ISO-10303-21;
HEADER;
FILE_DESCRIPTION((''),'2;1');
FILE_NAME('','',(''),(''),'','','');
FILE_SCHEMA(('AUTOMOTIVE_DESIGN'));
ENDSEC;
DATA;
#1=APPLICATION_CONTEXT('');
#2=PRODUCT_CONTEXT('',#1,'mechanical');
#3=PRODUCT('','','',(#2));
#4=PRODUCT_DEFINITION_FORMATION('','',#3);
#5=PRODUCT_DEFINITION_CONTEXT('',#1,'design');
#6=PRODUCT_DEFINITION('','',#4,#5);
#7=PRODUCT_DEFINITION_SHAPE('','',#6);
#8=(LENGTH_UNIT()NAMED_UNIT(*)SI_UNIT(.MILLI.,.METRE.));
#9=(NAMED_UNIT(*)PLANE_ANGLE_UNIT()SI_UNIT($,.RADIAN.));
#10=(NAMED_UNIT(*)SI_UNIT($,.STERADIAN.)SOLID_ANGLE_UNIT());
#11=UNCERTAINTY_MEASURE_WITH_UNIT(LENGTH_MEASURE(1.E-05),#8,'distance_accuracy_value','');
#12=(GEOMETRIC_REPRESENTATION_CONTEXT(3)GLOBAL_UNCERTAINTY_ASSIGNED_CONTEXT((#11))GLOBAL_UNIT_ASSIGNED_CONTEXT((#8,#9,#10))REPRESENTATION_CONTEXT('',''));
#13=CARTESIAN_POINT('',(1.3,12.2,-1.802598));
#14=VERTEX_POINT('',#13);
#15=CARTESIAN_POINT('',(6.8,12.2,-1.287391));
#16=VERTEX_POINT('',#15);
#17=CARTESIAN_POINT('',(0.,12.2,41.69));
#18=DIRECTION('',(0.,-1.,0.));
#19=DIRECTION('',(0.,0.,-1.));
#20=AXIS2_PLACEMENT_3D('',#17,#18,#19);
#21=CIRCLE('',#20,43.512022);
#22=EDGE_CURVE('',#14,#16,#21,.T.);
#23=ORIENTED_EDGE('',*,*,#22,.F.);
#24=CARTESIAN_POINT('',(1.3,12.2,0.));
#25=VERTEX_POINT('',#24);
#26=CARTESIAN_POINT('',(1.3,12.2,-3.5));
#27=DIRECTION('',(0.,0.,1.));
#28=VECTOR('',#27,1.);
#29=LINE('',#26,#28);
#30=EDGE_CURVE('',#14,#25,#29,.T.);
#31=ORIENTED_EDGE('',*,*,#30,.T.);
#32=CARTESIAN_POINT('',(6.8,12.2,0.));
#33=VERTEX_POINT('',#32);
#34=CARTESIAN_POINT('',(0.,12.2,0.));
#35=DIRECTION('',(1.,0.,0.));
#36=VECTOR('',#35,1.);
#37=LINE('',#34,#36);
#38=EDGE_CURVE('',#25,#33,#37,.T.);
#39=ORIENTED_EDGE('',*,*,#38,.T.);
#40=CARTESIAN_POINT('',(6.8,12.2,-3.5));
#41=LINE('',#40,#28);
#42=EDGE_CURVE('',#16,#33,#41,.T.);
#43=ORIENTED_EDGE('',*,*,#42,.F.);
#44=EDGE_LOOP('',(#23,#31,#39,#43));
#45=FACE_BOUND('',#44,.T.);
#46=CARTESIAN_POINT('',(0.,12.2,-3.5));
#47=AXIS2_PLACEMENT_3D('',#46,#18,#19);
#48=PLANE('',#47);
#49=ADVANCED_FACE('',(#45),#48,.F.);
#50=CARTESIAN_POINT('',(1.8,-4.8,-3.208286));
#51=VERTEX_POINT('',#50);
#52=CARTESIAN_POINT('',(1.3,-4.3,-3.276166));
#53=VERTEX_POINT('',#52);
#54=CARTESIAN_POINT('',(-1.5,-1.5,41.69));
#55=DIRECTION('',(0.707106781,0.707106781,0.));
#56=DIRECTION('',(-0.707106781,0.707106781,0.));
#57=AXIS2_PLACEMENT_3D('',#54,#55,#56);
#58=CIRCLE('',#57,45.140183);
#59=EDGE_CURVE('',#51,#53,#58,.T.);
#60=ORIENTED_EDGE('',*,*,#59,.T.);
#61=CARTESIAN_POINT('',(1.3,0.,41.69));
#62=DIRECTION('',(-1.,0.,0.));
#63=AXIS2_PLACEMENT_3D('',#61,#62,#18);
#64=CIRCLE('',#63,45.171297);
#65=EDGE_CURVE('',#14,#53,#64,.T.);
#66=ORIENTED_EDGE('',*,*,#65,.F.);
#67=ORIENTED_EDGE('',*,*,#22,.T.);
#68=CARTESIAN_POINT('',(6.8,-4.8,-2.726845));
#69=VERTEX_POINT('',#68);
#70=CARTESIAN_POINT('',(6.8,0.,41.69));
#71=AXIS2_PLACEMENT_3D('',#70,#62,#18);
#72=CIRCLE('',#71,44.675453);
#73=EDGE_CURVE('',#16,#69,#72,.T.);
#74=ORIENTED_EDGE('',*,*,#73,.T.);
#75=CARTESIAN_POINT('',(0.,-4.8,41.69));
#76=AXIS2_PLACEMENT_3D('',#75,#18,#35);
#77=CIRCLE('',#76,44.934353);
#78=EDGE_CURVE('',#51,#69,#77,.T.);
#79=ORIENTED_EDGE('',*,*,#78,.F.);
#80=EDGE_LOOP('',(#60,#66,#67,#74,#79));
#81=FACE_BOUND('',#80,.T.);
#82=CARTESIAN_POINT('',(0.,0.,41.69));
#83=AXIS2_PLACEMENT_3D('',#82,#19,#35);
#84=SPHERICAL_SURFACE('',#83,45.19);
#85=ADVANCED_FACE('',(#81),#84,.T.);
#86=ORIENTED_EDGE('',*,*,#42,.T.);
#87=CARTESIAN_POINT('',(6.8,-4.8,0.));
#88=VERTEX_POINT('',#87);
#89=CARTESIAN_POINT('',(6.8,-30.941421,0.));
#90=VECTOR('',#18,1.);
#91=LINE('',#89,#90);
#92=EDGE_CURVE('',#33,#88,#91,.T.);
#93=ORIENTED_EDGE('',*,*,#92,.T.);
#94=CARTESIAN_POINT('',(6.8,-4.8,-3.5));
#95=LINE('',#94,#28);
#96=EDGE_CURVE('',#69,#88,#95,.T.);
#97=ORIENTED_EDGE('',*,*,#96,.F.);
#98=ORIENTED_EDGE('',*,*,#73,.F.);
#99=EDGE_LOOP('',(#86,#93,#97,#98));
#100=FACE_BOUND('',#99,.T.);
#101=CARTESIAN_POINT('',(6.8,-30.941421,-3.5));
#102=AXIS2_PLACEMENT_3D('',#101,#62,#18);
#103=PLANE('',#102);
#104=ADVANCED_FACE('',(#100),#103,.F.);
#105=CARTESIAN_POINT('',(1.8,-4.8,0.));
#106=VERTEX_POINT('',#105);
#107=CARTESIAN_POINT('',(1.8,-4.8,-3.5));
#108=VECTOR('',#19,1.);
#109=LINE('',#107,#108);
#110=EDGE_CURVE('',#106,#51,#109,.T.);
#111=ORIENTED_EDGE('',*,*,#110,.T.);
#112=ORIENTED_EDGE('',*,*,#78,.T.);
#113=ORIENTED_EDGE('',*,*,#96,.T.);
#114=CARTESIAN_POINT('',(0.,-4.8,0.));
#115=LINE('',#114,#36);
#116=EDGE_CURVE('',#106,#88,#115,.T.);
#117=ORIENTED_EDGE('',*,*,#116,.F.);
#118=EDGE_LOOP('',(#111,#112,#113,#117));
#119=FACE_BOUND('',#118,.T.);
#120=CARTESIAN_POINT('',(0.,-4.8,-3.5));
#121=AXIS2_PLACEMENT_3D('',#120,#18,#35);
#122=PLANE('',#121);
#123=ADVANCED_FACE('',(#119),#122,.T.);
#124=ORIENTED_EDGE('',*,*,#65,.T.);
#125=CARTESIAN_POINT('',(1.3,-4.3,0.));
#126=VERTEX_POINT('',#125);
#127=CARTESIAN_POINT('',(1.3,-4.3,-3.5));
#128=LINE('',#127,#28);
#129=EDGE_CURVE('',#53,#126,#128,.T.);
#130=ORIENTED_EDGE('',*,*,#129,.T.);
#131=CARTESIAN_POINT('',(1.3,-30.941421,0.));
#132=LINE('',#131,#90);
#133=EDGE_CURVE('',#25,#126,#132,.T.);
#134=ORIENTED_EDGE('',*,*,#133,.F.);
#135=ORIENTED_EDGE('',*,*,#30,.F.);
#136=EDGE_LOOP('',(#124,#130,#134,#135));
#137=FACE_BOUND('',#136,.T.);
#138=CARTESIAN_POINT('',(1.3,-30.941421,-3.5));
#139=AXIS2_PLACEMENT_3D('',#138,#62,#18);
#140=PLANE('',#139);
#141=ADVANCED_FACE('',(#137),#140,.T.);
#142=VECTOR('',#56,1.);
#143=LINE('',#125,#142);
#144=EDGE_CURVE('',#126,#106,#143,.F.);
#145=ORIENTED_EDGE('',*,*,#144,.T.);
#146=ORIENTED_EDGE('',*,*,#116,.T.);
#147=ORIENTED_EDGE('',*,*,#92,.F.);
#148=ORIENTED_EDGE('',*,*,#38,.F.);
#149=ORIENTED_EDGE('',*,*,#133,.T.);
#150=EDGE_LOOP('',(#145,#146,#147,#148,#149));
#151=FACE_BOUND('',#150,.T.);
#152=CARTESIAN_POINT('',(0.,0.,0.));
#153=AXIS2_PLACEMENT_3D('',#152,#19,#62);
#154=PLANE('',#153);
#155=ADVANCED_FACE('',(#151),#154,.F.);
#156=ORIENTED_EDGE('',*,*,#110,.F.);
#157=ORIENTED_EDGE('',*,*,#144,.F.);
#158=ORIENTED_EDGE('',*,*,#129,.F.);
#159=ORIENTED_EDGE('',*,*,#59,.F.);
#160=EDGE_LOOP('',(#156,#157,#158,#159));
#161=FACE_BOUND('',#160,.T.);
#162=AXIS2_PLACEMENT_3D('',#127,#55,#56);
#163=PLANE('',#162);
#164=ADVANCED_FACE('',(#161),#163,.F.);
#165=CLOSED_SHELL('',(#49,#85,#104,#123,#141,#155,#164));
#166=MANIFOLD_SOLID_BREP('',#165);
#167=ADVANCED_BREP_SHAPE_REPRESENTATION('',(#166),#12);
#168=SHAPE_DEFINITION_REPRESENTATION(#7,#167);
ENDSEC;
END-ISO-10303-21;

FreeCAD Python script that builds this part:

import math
import FreeCAD as App
import Part
import Sketcher

V = App.Vector


def edges_at(feature, points):
    """Names of the edges that pass closest to the given points."""
    edges = feature.Shape.Edges
    near = lambda p: min(range(len(edges)), key=lambda i: edges[i].distToShape(Part.Vertex(*p))[0])
    return sorted({f"Edge{near(p) + 1}" for p in points})

doc = App.newDocument("Part")
body = doc.addObject("PartDesign::Body", "Body")

# Sketch on XZ plane
sketch1 = body.newObject("Sketcher::SketchObject", "Sketch")
sketch1.AttachmentSupport = (doc.getObject("XZ_Plane"), [""])
sketch1.MapMode = "FlatFace"
sketch1.addGeometry(Part.LineSegment(V(14, 0, 0), V(14, -1.3, 0)), False)
sketch1.addGeometry(Part.ArcOfCircle(Part.Circle(V(0, 41.7, 0), V(0, 0, 1), 45.2), math.radians(-90), math.radians(-71.95)), False)
sketch1.addGeometry(Part.LineSegment(V(0, -3.5, 0), V(0, 0, 0)), False)
sketch1.addGeometry(Part.LineSegment(V(0, 0, 0), V(14, 0, 0)), False)
sketch1.addConstraint(Sketcher.Constraint("Coincident", 0, 2, 1, 2))
sketch1.addConstraint(Sketcher.Constraint("Coincident", 1, 1, 2, 1))
sketch1.addConstraint(Sketcher.Constraint("Coincident", 2, 2, 3, 1))
sketch1.addConstraint(Sketcher.Constraint("Coincident", 3, 2, 0, 1))
sketch1.addConstraint(Sketcher.Constraint("Vertical", 0))
sketch1.addConstraint(Sketcher.Constraint("Vertical", 2))
sketch1.addConstraint(Sketcher.Constraint("Horizontal", 3))
sketch1.addConstraint(Sketcher.Constraint("Coincident", 2, 2, -1, 1))
sketch1.addConstraint(Sketcher.Constraint("PointOnObject", 1, 3, -2))
sketch1.addConstraint(Sketcher.Constraint("DistanceX", 3, 1, 3, 2, 14.0))
sketch1.addConstraint(Sketcher.Constraint("Radius", 1, 45.19))
sketch1.addConstraint(Sketcher.Constraint("DistanceY", 2, 1, 2, 2, 3.5))
revolution = body.newObject("PartDesign::Revolution", "Revolution")
revolution.Profile = sketch1
revolution.ReferenceAxis = (sketch1, ["V_Axis"])
revolution.Angle = 360

# Sketch on XY plane
sketch2 = body.newObject("Sketcher::SketchObject", "Sketch001")
sketch2.AttachmentSupport = (doc.getObject("XY_Plane"), [""])
sketch2.MapMode = "FlatFace"
sketch2.addGeometry(Part.LineSegment(V(-19, 19, 0), V(-19, -19, 0)), False)
sketch2.addGeometry(Part.LineSegment(V(-19, -19, 0), V(19, -19, 0)), False)
sketch2.addGeometry(Part.LineSegment(V(19, -19, 0), V(19, 19, 0)), False)
sketch2.addGeometry(Part.LineSegment(V(19, 19, 0), V(-19, 19, 0)), False)
sketch2.addGeometry(Part.LineSegment(V(7, -5, 0), V(1, -5, 0)), False)
sketch2.addGeometry(Part.LineSegment(V(1, -5, 0), V(1, 12, 0)), False)
sketch2.addGeometry(Part.LineSegment(V(1, 12, 0), V(7, 12, 0)), False)
sketch2.addGeometry(Part.LineSegment(V(7, 12, 0), V(7, -5, 0)), False)
sketch2.addConstraint(Sketcher.Constraint("Coincident", 0, 2, 1, 1))
sketch2.addConstraint(Sketcher.Constraint("Coincident", 1, 2, 2, 1))
sketch2.addConstraint(Sketcher.Constraint("Coincident", 2, 2, 3, 1))
sketch2.addConstraint(Sketcher.Constraint("Coincident", 3, 2, 0, 1))
sketch2.addConstraint(Sketcher.Constraint("Coincident", 4, 2, 5, 1))
sketch2.addConstraint(Sketcher.Constraint("Coincident", 5, 2, 6, 1))
sketch2.addConstraint(Sketcher.Constraint("Coincident", 6, 2, 7, 1))
sketch2.addConstraint(Sketcher.Constraint("Coincident", 7, 2, 4, 1))
sketch2.addConstraint(Sketcher.Constraint("Vertical", 0))
sketch2.addConstraint(Sketcher.Constraint("Horizontal", 1))
sketch2.addConstraint(Sketcher.Constraint("Vertical", 2))
sketch2.addConstraint(Sketcher.Constraint("Horizontal", 3))
sketch2.addConstraint(Sketcher.Constraint("Horizontal", 4))
sketch2.addConstraint(Sketcher.Constraint("Vertical", 5))
sketch2.addConstraint(Sketcher.Constraint("Horizontal", 6))
sketch2.addConstraint(Sketcher.Constraint("Vertical", 7))
sketch2.addConstraint(Sketcher.Constraint("Symmetric", 0, 2, 2, 2, -1, 1))
sketch2.addConstraint(Sketcher.Constraint("Equal", 3, 0))
sketch2.addConstraint(Sketcher.Constraint("DistanceY", 5, 1, 5, 2, 17.0))
sketch2.addConstraint(Sketcher.Constraint("DistanceX", 4, 2, 4, 1, 5.5))
sketch2.addConstraint(Sketcher.Constraint("DistanceX", 1, 1, 1, 2, 37.95))
sketch2.addConstraint(Sketcher.Constraint("DistanceX", -1, 1, 4, 2, 1.3))
sketch2.addConstraint(Sketcher.Constraint("DistanceY", 4, 2, -1, 1, 4.8))
pocket1 = body.newObject("PartDesign::Pocket", "Pocket")
pocket1.Profile = sketch2
pocket1.Type = "ThroughAll"
doc.recompute()

chamfer = body.newObject("PartDesign::Chamfer", "Chamfer")
chamfer.Base = (pocket1, edges_at(pocket1, [(1.3, -4.8, -1.613)]))
chamfer.Size = 0.5

doc.recompute()
